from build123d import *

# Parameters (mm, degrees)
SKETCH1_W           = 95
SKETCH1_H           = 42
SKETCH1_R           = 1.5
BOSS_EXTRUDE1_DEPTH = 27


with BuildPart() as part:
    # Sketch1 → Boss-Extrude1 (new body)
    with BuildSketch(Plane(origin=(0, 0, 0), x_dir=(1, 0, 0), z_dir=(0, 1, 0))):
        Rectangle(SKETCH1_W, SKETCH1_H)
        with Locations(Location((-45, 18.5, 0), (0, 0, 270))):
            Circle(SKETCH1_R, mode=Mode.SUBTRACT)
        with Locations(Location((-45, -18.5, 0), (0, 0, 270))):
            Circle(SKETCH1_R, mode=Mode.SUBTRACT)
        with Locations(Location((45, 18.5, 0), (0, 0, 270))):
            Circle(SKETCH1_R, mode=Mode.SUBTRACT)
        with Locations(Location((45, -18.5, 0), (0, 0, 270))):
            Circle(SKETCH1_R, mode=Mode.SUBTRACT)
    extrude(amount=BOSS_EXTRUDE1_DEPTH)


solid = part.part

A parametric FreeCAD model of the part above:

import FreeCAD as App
import Part
import Sketcher
from FreeCAD import Vector
Q = App.Units.Quantity


def add_polygon(sketch, points):
    """Adds a closed chain of lines whose ends are joined by coincident constraints."""
    first, n = sketch.GeometryCount, len(points)
    for a, b in zip(points, points[1:] + points[:1]):
        sketch.addGeometry(Part.LineSegment(App.Vector(*a, 0), App.Vector(*b, 0)), False)
    for i in range(n):
        sketch.addConstraint(Sketcher.Constraint("Coincident", first + i, 2, first + (i + 1) % n, 1))

doc = App.newDocument("Part")
params = doc.addObject("Spreadsheet::Sheet", "Params")
for row, (alias, value) in enumerate([
    ("sketch1_diameter", "3 mm"),
    ("sketch1_width", "95 mm"),
    ("sketch1_height", "42 mm"),
    ("pad1_length", "27 mm"),
], start=1):
    params.set(f"A{row}", alias)
    params.set(f"B{row}", "=" + value)
    params.setAlias(f"B{row}", alias)

body = doc.addObject("PartDesign::Body", "Body")

sketch1 = body.newObject("Sketcher::SketchObject", "Sketch")
sketch1.AttachmentSupport = (doc.getObject("XZ_Plane"), [""])
sketch1.MapMode = "FlatFace"
add_polygon(sketch1, [(-47.5, -21), (-47.5, 21), (47.5, 21), (47.5, -21)])
sketch1.addGeometry(Part.Circle(Vector(-45, 18.5, 0), Vector(0, 0, 1), 1.5), False)
sketch1.addGeometry(Part.Circle(Vector(45, 18.5, 0), Vector(0, 0, 1), 1.5), False)
sketch1.addGeometry(Part.Circle(Vector(-45, -18.5, 0), Vector(0, 0, 1), 1.5), False)
sketch1.addGeometry(Part.Circle(Vector(45, -18.5, 0), Vector(0, 0, 1), 1.5), False)
sketch1.addConstraint([
    Sketcher.Constraint("Vertical", 0),
    Sketcher.Constraint("Horizontal", 1),
    Sketcher.Constraint("Vertical", 2),
    Sketcher.Constraint("Horizontal", 3),
    Sketcher.Constraint("Equal", 4, 5),
    Sketcher.Constraint("Equal", 5, 6),
    Sketcher.Constraint("Equal", 6, 7),
    Sketcher.Constraint("Symmetric", 5, 3, 6, 3, -1, 1),
    Sketcher.Constraint("Symmetric", 4, 3, 7, 3, -1, 1),
    Sketcher.Constraint("Symmetric", 0, 2, 2, 2, -1, 1),
    Sketcher.Constraint("Symmetric", 4, 3, 5, 3, -2),
    Sketcher.Constraint("Diameter", 4, Q("3 mm")),
    Sketcher.Constraint("DistanceX", 1, 1, 1, 2, Q("95 mm")),
    Sketcher.Constraint("DistanceY", 0, 1, 0, 2, Q("42 mm")),
    Sketcher.Constraint("DistanceX", 4, 3, -1, 1, Q("45 mm")),
    Sketcher.Constraint("DistanceY", 6, 3, 4, 3, Q("37 mm")),
])
sketch1.setExpression("Constraints[15]", "Params.sketch1_diameter")
sketch1.setExpression("Constraints[16]", "Params.sketch1_width")
sketch1.setExpression("Constraints[17]", "Params.sketch1_height")
pad1 = body.newObject("PartDesign::Pad", "Pad")
pad1.Profile = sketch1
pad1.setExpression("Length", "Params.pad1_length")
pad1.Reversed = True

doc.recompute()
